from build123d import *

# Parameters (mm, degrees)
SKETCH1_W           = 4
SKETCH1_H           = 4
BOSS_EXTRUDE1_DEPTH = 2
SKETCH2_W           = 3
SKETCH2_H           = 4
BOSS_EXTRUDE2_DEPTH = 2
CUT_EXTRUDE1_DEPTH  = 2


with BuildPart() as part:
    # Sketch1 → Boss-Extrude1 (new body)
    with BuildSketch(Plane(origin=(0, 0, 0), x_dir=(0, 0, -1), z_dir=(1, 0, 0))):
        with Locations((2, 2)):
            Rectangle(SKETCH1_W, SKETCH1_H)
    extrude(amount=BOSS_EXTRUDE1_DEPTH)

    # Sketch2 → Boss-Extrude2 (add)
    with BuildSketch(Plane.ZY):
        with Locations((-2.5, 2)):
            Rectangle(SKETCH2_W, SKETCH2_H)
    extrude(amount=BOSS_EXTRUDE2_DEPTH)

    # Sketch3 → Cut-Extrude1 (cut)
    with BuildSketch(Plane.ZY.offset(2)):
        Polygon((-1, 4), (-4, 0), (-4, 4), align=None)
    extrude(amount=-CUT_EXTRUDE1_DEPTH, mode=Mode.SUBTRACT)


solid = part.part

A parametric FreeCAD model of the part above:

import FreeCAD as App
import Part
import Sketcher

V = App.Vector
Q = App.Units.Quantity

doc = App.newDocument("Part")
body = doc.addObject("PartDesign::Body", "Body")

# Sketch on YZ plane
sketch1 = body.newObject("Sketcher::SketchObject", "Sketch")
sketch1.AttachmentSupport = (doc.getObject("YZ_Plane"), [""])
sketch1.MapMode = "FlatFace"
sketch1.addGeometry([
    Part.LineSegment(V(4, 0, 0), V(0, 0, 0)),
    Part.LineSegment(V(0, 0, 0), V(0, -4, 0)),
    Part.LineSegment(V(0, -4, 0), V(4, -4, 0)),
    Part.LineSegment(V(4, -4, 0), V(4, 0, 0)),
], False)
sketch1.addConstraint([
    Sketcher.Constraint("Coincident", 0, 2, 1, 1),
    Sketcher.Constraint("Coincident", 1, 2, 2, 1),
    Sketcher.Constraint("Coincident", 2, 2, 3, 1),
    Sketcher.Constraint("Coincident", 3, 2, 0, 1),
    Sketcher.Constraint("Horizontal", 0),
    Sketcher.Constraint("Vertical", 1),
    Sketcher.Constraint("Horizontal", 2),
    Sketcher.Constraint("Vertical", 3),
    Sketcher.Constraint("Coincident", 0, 2, -1, 1),
    Sketcher.Constraint("Equal", 2, 1),
    Sketcher.Constraint("DistanceX", 0, 2, 0, 1, Q("4 mm")),
])
pad1 = body.newObject("PartDesign::Pad", "Pad")
pad1.Profile = sketch1
pad1.Length = 2

# Sketch on YZ plane
sketch2 = body.newObject("Sketcher::SketchObject", "Sketch001")
sketch2.AttachmentSupport = (doc.getObject("YZ_Plane"), [""])
sketch2.MapMode = "FlatFace"
sketch2.addGeometry([
    Part.LineSegment(V(4, -4, 0), V(0, -4, 0)),
    Part.LineSegment(V(0, -4, 0), V(0, -1, 0)),
    Part.LineSegment(V(0, -1, 0), V(4, -1, 0)),
    Part.LineSegment(V(4, -1, 0), V(4, -4, 0)),
], False)
sketch2.addConstraint([
    Sketcher.Constraint("Coincident", 0, 2, 1, 1),
    Sketcher.Constraint("Coincident", 1, 2, 2, 1),
    Sketcher.Constraint("Coincident", 2, 2, 3, 1),
    Sketcher.Constraint("Coincident", 3, 2, 0, 1),
    Sketcher.Constraint("Horizontal", 0),
    Sketcher.Constraint("Vertical", 1),
    Sketcher.Constraint("Horizontal", 2),
    Sketcher.Constraint("Vertical", 3),
    Sketcher.Constraint("PointOnObject", 0, 2, -2),
    Sketcher.Constraint("DistanceX", 0, 2, 0, 1, Q("4 mm")),
    Sketcher.Constraint("DistanceY", 1, 1, 1, 2, Q("3 mm")),
    Sketcher.Constraint("DistanceY", 0, 2, -1, 1, Q("4 mm")),
])
pad2 = body.newObject("PartDesign::Pad", "Pad001")
pad2.Profile = sketch2
pad2.Length = 2
pad2.Reversed = True

# Sketch on YZ plane
sketch3 = body.newObject("Sketcher::SketchObject", "Sketch002")
sketch3.AttachmentSupport = (doc.getObject("YZ_Plane"), [""])
sketch3.MapMode = "FlatFace"
sketch3.AttachmentOffset = App.Placement(V(0, 0, -2), App.Rotation())
sketch3.addGeometry([
    Part.LineSegment(V(0, -4, 0), V(4, -1, 0)),
    Part.LineSegment(V(4, -1, 0), V(4, -4, 0)),
    Part.LineSegment(V(4, -4, 0), V(0, -4, 0)),
], False)
sketch3.addConstraint([
    Sketcher.Constraint("Coincident", 0, 2, 1, 1),
    Sketcher.Constraint("Coincident", 1, 2, 2, 1),
    Sketcher.Constraint("Coincident", 2, 2, 0, 1),
    Sketcher.Constraint("Vertical", 1),
    Sketcher.Constraint("Horizontal", 2),
    Sketcher.Constraint("PointOnObject", 2, 2, -2),
    Sketcher.Constraint("DistanceX", 2, 2, 2, 1, Q("4 mm")),
    Sketcher.Constraint("DistanceY", 1, 2, 1, 1, Q("3 mm")),
    Sketcher.Constraint("DistanceY", 0, 2, -1, 1, Q("1 mm")),
])
pocket1 = body.newObject("PartDesign::Pocket", "Pocket")
pocket1.Profile = sketch3
pocket1.Length = 2
pocket1.Reversed = True

doc.recompute()
